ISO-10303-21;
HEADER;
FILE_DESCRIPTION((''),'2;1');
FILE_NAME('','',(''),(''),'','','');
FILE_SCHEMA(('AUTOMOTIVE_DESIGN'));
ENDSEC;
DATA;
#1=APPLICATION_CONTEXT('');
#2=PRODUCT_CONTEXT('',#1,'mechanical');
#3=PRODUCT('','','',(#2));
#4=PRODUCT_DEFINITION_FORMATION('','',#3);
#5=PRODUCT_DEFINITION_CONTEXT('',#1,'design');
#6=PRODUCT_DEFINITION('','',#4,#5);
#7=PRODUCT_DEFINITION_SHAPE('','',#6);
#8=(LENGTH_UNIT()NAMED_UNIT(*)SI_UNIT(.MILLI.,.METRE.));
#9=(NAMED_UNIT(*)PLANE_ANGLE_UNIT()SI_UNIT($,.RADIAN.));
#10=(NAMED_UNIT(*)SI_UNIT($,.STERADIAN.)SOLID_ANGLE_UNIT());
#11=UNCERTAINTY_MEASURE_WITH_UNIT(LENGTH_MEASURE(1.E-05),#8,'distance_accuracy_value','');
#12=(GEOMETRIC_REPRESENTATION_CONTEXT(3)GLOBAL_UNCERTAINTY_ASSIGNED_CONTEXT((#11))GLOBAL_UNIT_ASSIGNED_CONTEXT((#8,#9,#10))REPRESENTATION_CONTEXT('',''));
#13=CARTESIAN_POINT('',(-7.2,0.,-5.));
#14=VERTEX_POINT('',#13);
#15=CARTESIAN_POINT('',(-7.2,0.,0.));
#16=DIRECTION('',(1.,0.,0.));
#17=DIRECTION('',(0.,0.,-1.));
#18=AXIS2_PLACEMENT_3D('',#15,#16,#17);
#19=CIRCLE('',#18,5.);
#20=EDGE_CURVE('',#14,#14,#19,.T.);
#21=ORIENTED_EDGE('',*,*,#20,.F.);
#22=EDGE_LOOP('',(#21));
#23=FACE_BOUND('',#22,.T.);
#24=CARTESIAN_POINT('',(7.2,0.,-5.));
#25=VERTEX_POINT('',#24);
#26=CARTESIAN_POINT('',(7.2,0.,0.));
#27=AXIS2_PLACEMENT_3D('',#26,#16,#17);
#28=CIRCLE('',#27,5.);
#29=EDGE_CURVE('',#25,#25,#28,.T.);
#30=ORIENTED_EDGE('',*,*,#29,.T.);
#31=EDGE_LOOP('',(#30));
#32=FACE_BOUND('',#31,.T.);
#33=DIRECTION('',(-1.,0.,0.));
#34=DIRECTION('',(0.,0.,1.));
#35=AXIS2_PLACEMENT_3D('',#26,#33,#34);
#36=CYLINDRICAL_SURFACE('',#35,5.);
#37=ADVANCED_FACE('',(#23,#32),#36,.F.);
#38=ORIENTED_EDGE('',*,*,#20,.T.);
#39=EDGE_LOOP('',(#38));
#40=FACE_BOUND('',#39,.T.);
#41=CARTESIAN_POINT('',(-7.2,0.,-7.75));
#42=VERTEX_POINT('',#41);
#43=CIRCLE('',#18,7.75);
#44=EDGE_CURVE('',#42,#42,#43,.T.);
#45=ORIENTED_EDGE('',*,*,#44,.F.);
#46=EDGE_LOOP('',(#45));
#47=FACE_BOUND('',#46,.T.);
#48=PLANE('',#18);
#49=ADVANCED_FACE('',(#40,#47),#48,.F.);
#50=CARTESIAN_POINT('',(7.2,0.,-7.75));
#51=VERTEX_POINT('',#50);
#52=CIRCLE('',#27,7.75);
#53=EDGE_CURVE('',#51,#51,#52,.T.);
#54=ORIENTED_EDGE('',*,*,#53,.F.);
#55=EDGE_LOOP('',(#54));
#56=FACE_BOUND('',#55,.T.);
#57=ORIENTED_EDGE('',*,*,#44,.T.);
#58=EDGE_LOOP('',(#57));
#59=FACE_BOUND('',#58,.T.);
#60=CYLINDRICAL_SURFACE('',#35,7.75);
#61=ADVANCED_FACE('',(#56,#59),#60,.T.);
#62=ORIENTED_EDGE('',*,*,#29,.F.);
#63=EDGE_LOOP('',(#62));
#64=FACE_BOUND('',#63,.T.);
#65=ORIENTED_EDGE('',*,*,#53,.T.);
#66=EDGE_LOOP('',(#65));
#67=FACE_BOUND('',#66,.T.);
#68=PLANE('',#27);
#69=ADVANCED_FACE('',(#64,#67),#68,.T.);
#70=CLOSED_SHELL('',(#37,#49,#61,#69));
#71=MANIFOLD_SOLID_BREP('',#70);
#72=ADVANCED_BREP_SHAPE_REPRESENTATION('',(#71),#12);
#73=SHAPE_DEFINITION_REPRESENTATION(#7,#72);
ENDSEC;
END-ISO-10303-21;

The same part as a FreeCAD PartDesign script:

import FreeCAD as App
import Part
import Sketcher

doc = App.newDocument("Part")
body = doc.addObject("PartDesign::Body", "Body")

sketch1 = body.newObject("Sketcher::SketchObject", "Sketch")
sketch1.AttachmentSupport = (doc.getObject("YZ_Plane"), [""])
sketch1.MapMode = "FlatFace"
sketch1.addGeometry([
    Part.Circle(App.Vector(0, 0, 0), App.Vector(0, 0, 1), 8),
    Part.Circle(App.Vector(0, 0, 0), App.Vector(0, 0, 1), 5),
], False)
sketch1.addConstraint([
    Sketcher.Constraint("Coincident", 0, 3, -1, 1),
    Sketcher.Constraint("Coincident", 1, 3, -1, 1),
    Sketcher.Constraint("Diameter", 1, 10.0),
    Sketcher.Constraint("Diameter", 0, 15.5),
])
pad1 = body.newObject("PartDesign::Pad", "Pad")
pad1.Profile = sketch1
pad1.Length = 14.4
pad1.Midplane = True

doc.recompute()
